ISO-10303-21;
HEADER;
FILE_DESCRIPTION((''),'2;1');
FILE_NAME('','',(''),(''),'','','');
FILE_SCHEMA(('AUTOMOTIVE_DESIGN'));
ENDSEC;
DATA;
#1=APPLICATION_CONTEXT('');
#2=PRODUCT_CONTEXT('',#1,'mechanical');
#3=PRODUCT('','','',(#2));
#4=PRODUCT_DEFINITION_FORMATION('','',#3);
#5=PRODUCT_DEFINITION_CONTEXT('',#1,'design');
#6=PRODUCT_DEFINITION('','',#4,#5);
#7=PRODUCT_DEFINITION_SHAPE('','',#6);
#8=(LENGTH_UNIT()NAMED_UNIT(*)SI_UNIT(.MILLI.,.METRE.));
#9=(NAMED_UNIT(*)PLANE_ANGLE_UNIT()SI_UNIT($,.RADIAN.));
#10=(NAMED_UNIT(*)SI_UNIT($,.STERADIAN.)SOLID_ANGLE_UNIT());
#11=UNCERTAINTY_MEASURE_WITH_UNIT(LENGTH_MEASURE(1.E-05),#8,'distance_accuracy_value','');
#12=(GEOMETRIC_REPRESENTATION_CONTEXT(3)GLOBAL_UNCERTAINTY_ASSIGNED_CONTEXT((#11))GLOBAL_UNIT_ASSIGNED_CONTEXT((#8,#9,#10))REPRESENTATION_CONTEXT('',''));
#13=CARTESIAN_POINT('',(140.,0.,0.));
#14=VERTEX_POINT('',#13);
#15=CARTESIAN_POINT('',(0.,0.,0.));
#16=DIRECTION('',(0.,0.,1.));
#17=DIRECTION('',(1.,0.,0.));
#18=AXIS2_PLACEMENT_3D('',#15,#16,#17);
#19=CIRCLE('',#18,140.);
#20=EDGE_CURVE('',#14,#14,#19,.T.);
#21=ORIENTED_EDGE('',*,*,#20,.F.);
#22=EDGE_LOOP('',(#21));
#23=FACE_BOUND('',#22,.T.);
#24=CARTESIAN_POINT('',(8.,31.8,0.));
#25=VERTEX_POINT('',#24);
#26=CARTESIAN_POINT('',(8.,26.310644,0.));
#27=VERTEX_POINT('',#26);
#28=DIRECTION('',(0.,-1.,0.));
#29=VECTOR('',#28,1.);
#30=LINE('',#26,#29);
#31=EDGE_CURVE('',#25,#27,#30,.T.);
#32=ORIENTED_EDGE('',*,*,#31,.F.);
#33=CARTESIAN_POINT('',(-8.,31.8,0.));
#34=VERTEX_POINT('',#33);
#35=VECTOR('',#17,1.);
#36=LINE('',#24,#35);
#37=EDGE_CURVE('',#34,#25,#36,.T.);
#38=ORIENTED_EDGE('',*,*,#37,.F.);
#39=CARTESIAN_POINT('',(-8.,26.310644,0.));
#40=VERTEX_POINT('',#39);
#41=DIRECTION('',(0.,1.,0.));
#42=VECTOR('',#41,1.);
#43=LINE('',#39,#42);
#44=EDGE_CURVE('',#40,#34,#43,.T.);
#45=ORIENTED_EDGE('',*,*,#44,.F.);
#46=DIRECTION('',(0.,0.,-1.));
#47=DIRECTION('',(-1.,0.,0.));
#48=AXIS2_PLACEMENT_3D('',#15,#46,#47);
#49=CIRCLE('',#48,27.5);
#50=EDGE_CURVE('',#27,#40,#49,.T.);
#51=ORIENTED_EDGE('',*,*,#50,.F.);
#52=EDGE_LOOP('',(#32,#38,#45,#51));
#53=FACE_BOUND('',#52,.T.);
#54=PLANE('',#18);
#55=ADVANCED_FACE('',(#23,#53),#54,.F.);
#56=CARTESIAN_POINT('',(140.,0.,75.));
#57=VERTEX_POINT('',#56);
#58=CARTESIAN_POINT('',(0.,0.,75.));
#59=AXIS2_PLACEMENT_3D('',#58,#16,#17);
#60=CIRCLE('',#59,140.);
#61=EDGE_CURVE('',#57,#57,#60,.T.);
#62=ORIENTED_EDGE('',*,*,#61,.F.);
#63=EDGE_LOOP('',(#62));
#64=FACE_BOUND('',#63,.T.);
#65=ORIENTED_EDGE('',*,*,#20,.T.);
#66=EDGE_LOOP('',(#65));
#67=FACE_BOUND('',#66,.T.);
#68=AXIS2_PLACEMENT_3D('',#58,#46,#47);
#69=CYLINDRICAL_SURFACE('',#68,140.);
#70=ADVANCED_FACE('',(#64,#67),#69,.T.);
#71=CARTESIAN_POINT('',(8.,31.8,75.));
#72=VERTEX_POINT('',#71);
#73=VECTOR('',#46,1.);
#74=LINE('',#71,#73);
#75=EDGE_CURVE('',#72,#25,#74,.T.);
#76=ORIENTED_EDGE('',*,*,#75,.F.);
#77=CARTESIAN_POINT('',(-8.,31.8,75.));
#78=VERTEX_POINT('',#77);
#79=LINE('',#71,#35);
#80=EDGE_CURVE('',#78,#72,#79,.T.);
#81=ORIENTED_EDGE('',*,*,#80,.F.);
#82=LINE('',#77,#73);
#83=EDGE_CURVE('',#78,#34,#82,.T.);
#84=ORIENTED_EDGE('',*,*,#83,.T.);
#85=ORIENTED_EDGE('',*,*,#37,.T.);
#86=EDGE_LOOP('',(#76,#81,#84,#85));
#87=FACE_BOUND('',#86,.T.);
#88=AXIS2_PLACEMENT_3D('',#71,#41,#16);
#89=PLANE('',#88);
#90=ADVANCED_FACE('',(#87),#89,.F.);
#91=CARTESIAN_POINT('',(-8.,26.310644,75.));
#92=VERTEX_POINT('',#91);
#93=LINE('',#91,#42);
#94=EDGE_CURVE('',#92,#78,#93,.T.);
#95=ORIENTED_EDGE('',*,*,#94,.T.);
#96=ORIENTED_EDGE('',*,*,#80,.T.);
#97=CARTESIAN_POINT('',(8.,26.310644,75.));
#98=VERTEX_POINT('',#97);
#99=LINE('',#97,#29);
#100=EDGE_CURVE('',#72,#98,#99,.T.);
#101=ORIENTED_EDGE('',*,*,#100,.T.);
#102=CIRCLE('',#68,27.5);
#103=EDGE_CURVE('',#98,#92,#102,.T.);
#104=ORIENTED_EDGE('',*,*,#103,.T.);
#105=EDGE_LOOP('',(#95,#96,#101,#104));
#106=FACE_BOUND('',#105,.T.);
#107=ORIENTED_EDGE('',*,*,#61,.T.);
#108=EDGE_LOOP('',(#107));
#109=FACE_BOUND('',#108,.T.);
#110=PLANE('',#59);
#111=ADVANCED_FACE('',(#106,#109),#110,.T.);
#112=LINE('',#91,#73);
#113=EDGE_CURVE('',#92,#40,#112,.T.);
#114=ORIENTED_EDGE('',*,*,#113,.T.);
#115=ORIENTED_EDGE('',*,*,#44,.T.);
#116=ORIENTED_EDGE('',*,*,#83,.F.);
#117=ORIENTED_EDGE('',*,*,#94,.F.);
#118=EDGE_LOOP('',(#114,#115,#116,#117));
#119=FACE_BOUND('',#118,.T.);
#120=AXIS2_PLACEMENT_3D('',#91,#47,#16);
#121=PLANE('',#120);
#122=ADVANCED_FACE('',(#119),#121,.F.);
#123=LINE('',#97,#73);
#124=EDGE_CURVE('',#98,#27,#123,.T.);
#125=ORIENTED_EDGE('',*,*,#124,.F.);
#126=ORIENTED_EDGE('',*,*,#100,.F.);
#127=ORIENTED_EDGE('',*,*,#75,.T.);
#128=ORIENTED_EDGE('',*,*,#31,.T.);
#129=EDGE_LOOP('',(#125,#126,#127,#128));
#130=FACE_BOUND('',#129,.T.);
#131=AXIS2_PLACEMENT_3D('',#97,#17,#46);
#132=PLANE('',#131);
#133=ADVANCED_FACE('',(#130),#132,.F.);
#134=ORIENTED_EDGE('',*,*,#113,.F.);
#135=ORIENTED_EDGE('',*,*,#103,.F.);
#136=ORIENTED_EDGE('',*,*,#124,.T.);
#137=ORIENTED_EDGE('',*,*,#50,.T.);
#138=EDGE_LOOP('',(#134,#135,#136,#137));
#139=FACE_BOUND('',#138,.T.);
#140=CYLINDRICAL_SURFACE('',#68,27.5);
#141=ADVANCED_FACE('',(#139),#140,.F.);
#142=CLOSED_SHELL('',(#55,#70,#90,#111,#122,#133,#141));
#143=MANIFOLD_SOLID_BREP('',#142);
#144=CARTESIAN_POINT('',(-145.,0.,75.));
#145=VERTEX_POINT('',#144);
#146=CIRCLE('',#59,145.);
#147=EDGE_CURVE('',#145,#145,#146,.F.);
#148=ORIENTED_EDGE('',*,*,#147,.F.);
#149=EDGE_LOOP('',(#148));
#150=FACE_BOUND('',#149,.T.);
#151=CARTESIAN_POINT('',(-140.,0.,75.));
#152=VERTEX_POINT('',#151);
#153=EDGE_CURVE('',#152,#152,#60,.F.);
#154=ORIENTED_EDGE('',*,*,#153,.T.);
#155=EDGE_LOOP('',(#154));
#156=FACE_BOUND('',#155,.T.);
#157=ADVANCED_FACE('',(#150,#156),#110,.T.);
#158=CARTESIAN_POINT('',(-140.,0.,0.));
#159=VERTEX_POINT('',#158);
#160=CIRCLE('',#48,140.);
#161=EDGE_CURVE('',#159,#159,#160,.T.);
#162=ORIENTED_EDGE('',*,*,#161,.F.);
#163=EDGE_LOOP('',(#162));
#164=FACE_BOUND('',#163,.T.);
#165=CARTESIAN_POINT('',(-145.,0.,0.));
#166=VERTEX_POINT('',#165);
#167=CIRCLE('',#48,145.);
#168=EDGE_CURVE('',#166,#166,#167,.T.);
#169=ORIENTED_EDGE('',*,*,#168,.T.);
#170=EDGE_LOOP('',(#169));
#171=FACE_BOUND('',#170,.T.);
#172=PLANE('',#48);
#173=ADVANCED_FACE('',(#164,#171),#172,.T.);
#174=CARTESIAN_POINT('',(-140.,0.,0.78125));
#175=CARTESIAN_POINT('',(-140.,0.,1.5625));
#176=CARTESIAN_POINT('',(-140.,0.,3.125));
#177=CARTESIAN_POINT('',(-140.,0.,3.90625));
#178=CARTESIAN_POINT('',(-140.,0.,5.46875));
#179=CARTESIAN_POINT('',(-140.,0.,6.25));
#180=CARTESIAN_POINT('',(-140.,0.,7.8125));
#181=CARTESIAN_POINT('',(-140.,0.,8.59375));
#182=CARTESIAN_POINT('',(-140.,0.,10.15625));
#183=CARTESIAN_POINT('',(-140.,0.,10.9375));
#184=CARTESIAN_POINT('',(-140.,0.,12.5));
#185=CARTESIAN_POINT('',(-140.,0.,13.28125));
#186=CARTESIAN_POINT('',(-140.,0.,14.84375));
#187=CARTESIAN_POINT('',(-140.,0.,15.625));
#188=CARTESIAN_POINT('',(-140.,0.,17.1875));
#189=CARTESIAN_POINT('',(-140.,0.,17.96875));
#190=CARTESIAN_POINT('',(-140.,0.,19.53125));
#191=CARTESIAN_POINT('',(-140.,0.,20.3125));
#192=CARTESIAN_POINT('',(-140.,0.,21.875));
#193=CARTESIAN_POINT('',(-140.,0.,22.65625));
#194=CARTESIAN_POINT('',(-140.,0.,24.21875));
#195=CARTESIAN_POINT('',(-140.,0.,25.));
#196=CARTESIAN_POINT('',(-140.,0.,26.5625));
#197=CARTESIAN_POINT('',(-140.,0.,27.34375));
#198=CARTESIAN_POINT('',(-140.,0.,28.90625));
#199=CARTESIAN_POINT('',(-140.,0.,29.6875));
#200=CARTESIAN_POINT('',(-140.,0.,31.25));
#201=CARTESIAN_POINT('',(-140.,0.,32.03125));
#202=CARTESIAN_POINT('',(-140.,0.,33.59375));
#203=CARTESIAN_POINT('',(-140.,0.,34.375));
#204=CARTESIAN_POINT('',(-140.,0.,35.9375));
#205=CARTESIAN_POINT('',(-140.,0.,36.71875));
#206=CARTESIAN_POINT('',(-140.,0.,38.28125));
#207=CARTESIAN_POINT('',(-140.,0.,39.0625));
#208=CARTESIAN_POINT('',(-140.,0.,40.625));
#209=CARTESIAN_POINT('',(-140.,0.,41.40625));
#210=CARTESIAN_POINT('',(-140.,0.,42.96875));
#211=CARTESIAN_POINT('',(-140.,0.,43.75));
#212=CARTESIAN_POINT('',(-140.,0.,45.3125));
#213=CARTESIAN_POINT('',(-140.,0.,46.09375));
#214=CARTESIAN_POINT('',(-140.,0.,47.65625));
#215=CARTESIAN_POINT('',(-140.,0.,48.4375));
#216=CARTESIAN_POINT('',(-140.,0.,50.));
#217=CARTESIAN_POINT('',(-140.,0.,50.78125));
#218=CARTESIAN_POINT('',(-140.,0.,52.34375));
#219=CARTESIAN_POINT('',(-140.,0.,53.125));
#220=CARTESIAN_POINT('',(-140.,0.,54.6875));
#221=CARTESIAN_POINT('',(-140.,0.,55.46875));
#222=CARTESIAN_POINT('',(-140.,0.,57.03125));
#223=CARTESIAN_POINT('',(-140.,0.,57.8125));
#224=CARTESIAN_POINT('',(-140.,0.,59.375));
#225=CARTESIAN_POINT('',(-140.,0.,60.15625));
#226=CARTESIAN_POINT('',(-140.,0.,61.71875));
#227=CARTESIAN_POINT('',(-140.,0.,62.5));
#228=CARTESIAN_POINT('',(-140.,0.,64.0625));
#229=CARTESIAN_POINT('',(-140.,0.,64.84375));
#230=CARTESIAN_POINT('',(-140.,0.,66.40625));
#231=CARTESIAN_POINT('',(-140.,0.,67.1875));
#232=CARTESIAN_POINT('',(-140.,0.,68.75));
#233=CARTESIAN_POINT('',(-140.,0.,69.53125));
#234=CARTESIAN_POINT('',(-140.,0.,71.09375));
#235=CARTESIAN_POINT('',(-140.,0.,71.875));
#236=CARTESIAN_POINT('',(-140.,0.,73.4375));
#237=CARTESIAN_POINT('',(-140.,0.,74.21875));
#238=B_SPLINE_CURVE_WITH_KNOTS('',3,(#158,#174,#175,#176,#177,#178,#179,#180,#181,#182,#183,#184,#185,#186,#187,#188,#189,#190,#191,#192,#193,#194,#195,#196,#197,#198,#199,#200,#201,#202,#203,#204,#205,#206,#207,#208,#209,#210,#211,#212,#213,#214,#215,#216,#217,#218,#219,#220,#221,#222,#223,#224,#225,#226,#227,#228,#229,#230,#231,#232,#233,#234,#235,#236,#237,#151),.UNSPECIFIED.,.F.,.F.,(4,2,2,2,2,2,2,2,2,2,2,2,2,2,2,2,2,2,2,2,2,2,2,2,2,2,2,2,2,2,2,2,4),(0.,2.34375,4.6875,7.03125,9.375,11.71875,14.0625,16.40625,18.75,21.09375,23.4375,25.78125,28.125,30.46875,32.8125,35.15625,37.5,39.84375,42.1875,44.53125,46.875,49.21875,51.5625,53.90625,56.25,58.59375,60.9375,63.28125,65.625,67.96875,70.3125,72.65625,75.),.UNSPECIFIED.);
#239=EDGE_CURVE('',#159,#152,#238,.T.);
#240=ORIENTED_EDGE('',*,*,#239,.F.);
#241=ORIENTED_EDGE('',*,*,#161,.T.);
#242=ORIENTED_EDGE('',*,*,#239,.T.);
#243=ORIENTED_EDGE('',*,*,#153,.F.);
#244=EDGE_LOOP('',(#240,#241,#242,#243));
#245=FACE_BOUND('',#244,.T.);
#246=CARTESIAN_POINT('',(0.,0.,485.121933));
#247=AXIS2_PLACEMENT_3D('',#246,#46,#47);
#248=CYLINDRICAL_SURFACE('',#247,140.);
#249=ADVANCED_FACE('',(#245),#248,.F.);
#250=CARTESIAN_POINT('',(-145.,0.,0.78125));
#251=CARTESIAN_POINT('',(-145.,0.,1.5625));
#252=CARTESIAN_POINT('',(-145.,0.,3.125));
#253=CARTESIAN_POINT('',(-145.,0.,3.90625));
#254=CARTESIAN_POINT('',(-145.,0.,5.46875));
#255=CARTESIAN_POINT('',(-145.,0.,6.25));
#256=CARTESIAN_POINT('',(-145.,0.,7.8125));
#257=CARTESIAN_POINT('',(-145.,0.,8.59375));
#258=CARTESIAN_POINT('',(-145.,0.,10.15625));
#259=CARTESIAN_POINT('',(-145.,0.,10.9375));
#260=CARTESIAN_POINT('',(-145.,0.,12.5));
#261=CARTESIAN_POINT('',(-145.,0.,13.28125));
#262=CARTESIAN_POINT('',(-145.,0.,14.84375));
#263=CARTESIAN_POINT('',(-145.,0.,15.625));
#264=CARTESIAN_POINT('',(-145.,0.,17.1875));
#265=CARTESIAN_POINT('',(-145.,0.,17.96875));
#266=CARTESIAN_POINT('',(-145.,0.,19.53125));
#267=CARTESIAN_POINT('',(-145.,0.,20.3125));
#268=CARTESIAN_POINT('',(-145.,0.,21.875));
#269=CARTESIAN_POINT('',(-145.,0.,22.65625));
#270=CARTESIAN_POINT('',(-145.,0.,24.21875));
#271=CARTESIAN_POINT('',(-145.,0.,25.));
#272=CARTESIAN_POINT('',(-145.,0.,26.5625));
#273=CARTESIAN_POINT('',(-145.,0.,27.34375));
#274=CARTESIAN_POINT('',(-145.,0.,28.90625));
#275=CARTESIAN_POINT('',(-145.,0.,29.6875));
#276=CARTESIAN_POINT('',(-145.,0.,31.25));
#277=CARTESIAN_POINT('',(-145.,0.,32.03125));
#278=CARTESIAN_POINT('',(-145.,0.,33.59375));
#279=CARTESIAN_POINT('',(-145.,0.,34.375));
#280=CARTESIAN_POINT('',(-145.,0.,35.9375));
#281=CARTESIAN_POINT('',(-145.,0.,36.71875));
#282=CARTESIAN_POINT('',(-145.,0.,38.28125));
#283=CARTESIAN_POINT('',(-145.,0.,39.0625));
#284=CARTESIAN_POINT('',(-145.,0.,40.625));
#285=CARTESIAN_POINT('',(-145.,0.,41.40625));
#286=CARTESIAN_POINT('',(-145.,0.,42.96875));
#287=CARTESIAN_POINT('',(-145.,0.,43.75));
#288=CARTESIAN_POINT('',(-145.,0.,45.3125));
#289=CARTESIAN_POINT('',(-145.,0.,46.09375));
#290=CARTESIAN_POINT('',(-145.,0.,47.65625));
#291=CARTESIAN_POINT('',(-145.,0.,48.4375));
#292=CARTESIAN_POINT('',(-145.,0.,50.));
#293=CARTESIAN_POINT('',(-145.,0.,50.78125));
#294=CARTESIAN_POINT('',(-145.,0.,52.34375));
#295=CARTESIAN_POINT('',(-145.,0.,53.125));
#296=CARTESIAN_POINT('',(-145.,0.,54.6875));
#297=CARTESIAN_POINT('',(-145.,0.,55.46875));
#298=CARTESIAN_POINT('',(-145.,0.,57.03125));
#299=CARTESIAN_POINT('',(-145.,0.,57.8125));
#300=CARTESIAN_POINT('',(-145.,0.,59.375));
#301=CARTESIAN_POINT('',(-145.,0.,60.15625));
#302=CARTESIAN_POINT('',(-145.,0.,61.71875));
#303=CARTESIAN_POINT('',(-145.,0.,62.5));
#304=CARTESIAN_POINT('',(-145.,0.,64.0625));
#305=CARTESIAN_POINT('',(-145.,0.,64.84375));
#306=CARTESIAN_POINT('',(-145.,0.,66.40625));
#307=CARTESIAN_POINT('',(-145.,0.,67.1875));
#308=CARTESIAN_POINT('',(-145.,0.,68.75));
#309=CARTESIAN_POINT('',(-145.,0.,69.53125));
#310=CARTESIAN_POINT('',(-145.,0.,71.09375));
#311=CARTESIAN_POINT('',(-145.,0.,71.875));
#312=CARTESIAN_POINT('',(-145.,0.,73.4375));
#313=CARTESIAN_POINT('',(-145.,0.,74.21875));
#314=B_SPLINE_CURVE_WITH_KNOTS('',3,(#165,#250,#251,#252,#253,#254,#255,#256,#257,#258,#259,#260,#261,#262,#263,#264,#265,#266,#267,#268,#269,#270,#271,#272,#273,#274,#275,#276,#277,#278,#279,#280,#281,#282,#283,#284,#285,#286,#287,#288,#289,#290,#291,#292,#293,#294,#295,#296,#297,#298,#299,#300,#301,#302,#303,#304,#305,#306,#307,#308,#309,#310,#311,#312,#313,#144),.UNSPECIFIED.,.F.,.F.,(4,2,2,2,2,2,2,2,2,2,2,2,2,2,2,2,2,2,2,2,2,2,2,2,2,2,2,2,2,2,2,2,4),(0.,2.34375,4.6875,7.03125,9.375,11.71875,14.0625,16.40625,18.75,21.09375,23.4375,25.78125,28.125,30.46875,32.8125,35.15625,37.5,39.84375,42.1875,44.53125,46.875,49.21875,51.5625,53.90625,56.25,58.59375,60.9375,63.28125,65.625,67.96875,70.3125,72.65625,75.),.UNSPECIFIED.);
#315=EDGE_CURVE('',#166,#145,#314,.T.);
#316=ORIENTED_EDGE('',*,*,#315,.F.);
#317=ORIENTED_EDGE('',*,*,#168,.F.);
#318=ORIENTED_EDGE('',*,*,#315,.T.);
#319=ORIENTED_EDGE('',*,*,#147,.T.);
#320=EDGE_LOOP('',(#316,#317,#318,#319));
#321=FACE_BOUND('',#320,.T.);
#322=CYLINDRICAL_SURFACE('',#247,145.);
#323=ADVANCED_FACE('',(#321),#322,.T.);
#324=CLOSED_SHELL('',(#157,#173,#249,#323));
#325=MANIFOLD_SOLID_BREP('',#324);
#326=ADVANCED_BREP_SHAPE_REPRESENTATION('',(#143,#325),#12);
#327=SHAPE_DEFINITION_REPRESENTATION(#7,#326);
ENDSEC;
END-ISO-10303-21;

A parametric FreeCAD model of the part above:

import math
import FreeCAD as App
import Part
import Sketcher

V = App.Vector
Q = App.Units.Quantity

doc = App.newDocument("Part")
body = doc.addObject("PartDesign::Body", "Body")

# Sketch on XY plane
sketch1 = body.newObject("Sketcher::SketchObject", "Sketch")
sketch1.AttachmentSupport = (doc.getObject("XY_Plane"), [""])
sketch1.MapMode = "FlatFace"
sketch1.addGeometry(Part.Circle(V(0, 0, 0), V(0, 0, 1), 140), False)
sketch1.addConstraint(Sketcher.Constraint("Coincident", 0, 3, -1, 1))
sketch1.addConstraint(Sketcher.Constraint("Diameter", 0, Q("280 mm")))
pad1 = body.newObject("PartDesign::Pad", "Pad")
pad1.Profile = sketch1
pad1.Length = 75

# Sketch on XY plane
sketch2 = body.newObject("Sketcher::SketchObject", "Sketch001")
sketch2.AttachmentSupport = (doc.getObject("XY_Plane"), [""])
sketch2.MapMode = "FlatFace"
sketch2.addGeometry(Part.Circle(V(0, 0, 0), V(0, 0, 1), 28), False)
sketch2.addConstraint(Sketcher.Constraint("Coincident", 0, 3, -1, 1))
sketch2.addConstraint(Sketcher.Constraint("Diameter", 0, Q("55 mm")))
pocket1 = body.newObject("PartDesign::Pocket", "Pocket")
pocket1.Profile = sketch2
pocket1.Type = "ThroughAll"
pocket1.Reversed = True

# Sketch on XY plane
sketch3 = body.newObject("Sketcher::SketchObject", "Sketch002")
sketch3.AttachmentSupport = (doc.getObject("XY_Plane"), [""])
sketch3.MapMode = "FlatFace"
sketch3.addGeometry(Part.LineSegment(V(8, 32, 0), V(8, 26, 0)), False)
sketch3.addGeometry(Part.ArcOfCircle(Part.Circle(V(0, 0, 0), V(0, 0, 1), 28), math.radians(73), math.radians(107)), False)
sketch3.addGeometry(Part.LineSegment(V(-8, 26, 0), V(-8, 32, 0)), False)
sketch3.addGeometry(Part.LineSegment(V(-8, 32, 0), V(8, 32, 0)), False)
sketch3.addConstraint(Sketcher.Constraint("Coincident", 0, 2, 1, 1))
sketch3.addConstraint(Sketcher.Constraint("Coincident", 1, 2, 2, 1))
sketch3.addConstraint(Sketcher.Constraint("Coincident", 2, 2, 3, 1))
sketch3.addConstraint(Sketcher.Constraint("Coincident", 3, 2, 0, 1))
sketch3.addConstraint(Sketcher.Constraint("Vertical", 0))
sketch3.addConstraint(Sketcher.Constraint("Vertical", 2))
sketch3.addConstraint(Sketcher.Constraint("Horizontal", 3))
sketch3.addConstraint(Sketcher.Constraint("Coincident", 1, 3, -1, 1))
sketch3.addConstraint(Sketcher.Constraint("Horizontal", 0, 2, 1, 2))
sketch3.addConstraint(Sketcher.Constraint("Radius", 1, Q("27.5 mm")))
sketch3.addConstraint(Sketcher.Constraint("DistanceX", 3, 1, 3, 2, Q("16 mm")))
sketch3.addConstraint(Sketcher.Constraint("DistanceY", -1, 1, 2, 2, Q("31.8 mm")))
pocket2 = body.newObject("PartDesign::Pocket", "Pocket001")
pocket2.Profile = sketch3
pocket2.Type = "ThroughAll"
pocket2.Reversed = True
body2 = doc.addObject("PartDesign::Body", "Body001")

# Sketch on XY plane
sketch4 = body2.newObject("Sketcher::SketchObject", "Sketch003")
sketch4.AttachmentSupport = (doc.getObject("XY_Plane001"), [""])
sketch4.MapMode = "FlatFace"
sketch4.addGeometry(Part.Circle(V(0, 0, 0), V(0, 0, 1), 145), False)
sketch4.addGeometry(Part.Circle(V(0, 0, 0), V(0, 0, 1), 140), False)
sketch4.addConstraint(Sketcher.Constraint("Coincident", 0, 3, -1, 1))
sketch4.addConstraint(Sketcher.Constraint("Coincident", 1, 3, -1, 1))
sketch4.addConstraint(Sketcher.Constraint("Diameter", 0, Q("290 mm")))
sketch4.addConstraint(Sketcher.Constraint("Diameter", 1, Q("280 mm")))
pad2 = body2.newObject("PartDesign::Pad", "Pad001")
pad2.Profile = sketch4
pad2.Length = 75

doc.recompute()
